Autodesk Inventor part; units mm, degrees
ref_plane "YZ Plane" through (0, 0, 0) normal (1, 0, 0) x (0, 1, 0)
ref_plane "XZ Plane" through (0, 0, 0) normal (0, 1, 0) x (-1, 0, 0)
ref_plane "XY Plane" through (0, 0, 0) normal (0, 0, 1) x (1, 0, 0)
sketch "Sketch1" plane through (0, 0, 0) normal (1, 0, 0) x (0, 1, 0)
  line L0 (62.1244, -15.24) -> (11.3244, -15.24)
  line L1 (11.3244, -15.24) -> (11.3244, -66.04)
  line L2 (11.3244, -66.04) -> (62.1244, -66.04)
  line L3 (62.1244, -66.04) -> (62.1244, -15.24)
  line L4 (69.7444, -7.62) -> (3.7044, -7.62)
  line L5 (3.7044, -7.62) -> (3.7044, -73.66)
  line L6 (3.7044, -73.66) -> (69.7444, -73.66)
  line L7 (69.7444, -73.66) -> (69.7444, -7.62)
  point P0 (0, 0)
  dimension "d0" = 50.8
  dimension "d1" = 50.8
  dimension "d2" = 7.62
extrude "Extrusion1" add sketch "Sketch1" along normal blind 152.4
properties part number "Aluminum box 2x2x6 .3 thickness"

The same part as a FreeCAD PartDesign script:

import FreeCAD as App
import Part
import Sketcher
Q = App.Units.Quantity


def add_polygon(sketch, points):
    """Adds a closed chain of lines whose ends are joined by coincident constraints."""
    first, n = sketch.GeometryCount, len(points)
    for a, b in zip(points, points[1:] + points[:1]):
        sketch.addGeometry(Part.LineSegment(App.Vector(*a, 0), App.Vector(*b, 0)), False)
    for i in range(n):
        sketch.addConstraint(Sketcher.Constraint("Coincident", first + i, 2, first + (i + 1) % n, 1))

doc = App.newDocument("Part")
body = doc.addObject("PartDesign::Body", "Body")

sketch1 = body.newObject("Sketcher::SketchObject", "Sketch")
sketch1.AttachmentSupport = (doc.getObject("YZ_Plane"), [""])
sketch1.MapMode = "FlatFace"
add_polygon(sketch1, [(70, -74), (70, -8), (4, -8), (4, -74)])
add_polygon(sketch1, [(11, -15), (62, -15), (62, -66), (11, -66)])
sketch1.addConstraint([
    Sketcher.Constraint("Vertical", 0),
    Sketcher.Constraint("Horizontal", 1),
    Sketcher.Constraint("Vertical", 2),
    Sketcher.Constraint("Horizontal", 3),
    Sketcher.Constraint("Horizontal", 4),
    Sketcher.Constraint("Vertical", 5),
    Sketcher.Constraint("Horizontal", 6),
    Sketcher.Constraint("Vertical", 7),
    Sketcher.Constraint("Equal", 3, 0),
    Sketcher.Constraint("Equal", 6, 5),
    Sketcher.Constraint("DistanceX", 4, 1, 4, 2, Q("2 in")),
    Sketcher.Constraint("DistanceY", 0, 2, -1, 1, Q("0.3 in")),
    Sketcher.Constraint("DistanceX", 4, 2, 0, 2, Q("0.3 in")),
    Sketcher.Constraint("DistanceY", 4, 2, 0, 2, Q("0.3 in")),
    Sketcher.Constraint("DistanceY", 3, 2, 5, 2, Q("0.3 in")),
    Sketcher.Constraint("DistanceX", -1, 1, 0, 2, 69.7444),
])
pad1 = body.newObject("PartDesign::Pad", "Pad")
pad1.Profile = sketch1
pad1.Length = Q("6 in")

doc.recompute()
